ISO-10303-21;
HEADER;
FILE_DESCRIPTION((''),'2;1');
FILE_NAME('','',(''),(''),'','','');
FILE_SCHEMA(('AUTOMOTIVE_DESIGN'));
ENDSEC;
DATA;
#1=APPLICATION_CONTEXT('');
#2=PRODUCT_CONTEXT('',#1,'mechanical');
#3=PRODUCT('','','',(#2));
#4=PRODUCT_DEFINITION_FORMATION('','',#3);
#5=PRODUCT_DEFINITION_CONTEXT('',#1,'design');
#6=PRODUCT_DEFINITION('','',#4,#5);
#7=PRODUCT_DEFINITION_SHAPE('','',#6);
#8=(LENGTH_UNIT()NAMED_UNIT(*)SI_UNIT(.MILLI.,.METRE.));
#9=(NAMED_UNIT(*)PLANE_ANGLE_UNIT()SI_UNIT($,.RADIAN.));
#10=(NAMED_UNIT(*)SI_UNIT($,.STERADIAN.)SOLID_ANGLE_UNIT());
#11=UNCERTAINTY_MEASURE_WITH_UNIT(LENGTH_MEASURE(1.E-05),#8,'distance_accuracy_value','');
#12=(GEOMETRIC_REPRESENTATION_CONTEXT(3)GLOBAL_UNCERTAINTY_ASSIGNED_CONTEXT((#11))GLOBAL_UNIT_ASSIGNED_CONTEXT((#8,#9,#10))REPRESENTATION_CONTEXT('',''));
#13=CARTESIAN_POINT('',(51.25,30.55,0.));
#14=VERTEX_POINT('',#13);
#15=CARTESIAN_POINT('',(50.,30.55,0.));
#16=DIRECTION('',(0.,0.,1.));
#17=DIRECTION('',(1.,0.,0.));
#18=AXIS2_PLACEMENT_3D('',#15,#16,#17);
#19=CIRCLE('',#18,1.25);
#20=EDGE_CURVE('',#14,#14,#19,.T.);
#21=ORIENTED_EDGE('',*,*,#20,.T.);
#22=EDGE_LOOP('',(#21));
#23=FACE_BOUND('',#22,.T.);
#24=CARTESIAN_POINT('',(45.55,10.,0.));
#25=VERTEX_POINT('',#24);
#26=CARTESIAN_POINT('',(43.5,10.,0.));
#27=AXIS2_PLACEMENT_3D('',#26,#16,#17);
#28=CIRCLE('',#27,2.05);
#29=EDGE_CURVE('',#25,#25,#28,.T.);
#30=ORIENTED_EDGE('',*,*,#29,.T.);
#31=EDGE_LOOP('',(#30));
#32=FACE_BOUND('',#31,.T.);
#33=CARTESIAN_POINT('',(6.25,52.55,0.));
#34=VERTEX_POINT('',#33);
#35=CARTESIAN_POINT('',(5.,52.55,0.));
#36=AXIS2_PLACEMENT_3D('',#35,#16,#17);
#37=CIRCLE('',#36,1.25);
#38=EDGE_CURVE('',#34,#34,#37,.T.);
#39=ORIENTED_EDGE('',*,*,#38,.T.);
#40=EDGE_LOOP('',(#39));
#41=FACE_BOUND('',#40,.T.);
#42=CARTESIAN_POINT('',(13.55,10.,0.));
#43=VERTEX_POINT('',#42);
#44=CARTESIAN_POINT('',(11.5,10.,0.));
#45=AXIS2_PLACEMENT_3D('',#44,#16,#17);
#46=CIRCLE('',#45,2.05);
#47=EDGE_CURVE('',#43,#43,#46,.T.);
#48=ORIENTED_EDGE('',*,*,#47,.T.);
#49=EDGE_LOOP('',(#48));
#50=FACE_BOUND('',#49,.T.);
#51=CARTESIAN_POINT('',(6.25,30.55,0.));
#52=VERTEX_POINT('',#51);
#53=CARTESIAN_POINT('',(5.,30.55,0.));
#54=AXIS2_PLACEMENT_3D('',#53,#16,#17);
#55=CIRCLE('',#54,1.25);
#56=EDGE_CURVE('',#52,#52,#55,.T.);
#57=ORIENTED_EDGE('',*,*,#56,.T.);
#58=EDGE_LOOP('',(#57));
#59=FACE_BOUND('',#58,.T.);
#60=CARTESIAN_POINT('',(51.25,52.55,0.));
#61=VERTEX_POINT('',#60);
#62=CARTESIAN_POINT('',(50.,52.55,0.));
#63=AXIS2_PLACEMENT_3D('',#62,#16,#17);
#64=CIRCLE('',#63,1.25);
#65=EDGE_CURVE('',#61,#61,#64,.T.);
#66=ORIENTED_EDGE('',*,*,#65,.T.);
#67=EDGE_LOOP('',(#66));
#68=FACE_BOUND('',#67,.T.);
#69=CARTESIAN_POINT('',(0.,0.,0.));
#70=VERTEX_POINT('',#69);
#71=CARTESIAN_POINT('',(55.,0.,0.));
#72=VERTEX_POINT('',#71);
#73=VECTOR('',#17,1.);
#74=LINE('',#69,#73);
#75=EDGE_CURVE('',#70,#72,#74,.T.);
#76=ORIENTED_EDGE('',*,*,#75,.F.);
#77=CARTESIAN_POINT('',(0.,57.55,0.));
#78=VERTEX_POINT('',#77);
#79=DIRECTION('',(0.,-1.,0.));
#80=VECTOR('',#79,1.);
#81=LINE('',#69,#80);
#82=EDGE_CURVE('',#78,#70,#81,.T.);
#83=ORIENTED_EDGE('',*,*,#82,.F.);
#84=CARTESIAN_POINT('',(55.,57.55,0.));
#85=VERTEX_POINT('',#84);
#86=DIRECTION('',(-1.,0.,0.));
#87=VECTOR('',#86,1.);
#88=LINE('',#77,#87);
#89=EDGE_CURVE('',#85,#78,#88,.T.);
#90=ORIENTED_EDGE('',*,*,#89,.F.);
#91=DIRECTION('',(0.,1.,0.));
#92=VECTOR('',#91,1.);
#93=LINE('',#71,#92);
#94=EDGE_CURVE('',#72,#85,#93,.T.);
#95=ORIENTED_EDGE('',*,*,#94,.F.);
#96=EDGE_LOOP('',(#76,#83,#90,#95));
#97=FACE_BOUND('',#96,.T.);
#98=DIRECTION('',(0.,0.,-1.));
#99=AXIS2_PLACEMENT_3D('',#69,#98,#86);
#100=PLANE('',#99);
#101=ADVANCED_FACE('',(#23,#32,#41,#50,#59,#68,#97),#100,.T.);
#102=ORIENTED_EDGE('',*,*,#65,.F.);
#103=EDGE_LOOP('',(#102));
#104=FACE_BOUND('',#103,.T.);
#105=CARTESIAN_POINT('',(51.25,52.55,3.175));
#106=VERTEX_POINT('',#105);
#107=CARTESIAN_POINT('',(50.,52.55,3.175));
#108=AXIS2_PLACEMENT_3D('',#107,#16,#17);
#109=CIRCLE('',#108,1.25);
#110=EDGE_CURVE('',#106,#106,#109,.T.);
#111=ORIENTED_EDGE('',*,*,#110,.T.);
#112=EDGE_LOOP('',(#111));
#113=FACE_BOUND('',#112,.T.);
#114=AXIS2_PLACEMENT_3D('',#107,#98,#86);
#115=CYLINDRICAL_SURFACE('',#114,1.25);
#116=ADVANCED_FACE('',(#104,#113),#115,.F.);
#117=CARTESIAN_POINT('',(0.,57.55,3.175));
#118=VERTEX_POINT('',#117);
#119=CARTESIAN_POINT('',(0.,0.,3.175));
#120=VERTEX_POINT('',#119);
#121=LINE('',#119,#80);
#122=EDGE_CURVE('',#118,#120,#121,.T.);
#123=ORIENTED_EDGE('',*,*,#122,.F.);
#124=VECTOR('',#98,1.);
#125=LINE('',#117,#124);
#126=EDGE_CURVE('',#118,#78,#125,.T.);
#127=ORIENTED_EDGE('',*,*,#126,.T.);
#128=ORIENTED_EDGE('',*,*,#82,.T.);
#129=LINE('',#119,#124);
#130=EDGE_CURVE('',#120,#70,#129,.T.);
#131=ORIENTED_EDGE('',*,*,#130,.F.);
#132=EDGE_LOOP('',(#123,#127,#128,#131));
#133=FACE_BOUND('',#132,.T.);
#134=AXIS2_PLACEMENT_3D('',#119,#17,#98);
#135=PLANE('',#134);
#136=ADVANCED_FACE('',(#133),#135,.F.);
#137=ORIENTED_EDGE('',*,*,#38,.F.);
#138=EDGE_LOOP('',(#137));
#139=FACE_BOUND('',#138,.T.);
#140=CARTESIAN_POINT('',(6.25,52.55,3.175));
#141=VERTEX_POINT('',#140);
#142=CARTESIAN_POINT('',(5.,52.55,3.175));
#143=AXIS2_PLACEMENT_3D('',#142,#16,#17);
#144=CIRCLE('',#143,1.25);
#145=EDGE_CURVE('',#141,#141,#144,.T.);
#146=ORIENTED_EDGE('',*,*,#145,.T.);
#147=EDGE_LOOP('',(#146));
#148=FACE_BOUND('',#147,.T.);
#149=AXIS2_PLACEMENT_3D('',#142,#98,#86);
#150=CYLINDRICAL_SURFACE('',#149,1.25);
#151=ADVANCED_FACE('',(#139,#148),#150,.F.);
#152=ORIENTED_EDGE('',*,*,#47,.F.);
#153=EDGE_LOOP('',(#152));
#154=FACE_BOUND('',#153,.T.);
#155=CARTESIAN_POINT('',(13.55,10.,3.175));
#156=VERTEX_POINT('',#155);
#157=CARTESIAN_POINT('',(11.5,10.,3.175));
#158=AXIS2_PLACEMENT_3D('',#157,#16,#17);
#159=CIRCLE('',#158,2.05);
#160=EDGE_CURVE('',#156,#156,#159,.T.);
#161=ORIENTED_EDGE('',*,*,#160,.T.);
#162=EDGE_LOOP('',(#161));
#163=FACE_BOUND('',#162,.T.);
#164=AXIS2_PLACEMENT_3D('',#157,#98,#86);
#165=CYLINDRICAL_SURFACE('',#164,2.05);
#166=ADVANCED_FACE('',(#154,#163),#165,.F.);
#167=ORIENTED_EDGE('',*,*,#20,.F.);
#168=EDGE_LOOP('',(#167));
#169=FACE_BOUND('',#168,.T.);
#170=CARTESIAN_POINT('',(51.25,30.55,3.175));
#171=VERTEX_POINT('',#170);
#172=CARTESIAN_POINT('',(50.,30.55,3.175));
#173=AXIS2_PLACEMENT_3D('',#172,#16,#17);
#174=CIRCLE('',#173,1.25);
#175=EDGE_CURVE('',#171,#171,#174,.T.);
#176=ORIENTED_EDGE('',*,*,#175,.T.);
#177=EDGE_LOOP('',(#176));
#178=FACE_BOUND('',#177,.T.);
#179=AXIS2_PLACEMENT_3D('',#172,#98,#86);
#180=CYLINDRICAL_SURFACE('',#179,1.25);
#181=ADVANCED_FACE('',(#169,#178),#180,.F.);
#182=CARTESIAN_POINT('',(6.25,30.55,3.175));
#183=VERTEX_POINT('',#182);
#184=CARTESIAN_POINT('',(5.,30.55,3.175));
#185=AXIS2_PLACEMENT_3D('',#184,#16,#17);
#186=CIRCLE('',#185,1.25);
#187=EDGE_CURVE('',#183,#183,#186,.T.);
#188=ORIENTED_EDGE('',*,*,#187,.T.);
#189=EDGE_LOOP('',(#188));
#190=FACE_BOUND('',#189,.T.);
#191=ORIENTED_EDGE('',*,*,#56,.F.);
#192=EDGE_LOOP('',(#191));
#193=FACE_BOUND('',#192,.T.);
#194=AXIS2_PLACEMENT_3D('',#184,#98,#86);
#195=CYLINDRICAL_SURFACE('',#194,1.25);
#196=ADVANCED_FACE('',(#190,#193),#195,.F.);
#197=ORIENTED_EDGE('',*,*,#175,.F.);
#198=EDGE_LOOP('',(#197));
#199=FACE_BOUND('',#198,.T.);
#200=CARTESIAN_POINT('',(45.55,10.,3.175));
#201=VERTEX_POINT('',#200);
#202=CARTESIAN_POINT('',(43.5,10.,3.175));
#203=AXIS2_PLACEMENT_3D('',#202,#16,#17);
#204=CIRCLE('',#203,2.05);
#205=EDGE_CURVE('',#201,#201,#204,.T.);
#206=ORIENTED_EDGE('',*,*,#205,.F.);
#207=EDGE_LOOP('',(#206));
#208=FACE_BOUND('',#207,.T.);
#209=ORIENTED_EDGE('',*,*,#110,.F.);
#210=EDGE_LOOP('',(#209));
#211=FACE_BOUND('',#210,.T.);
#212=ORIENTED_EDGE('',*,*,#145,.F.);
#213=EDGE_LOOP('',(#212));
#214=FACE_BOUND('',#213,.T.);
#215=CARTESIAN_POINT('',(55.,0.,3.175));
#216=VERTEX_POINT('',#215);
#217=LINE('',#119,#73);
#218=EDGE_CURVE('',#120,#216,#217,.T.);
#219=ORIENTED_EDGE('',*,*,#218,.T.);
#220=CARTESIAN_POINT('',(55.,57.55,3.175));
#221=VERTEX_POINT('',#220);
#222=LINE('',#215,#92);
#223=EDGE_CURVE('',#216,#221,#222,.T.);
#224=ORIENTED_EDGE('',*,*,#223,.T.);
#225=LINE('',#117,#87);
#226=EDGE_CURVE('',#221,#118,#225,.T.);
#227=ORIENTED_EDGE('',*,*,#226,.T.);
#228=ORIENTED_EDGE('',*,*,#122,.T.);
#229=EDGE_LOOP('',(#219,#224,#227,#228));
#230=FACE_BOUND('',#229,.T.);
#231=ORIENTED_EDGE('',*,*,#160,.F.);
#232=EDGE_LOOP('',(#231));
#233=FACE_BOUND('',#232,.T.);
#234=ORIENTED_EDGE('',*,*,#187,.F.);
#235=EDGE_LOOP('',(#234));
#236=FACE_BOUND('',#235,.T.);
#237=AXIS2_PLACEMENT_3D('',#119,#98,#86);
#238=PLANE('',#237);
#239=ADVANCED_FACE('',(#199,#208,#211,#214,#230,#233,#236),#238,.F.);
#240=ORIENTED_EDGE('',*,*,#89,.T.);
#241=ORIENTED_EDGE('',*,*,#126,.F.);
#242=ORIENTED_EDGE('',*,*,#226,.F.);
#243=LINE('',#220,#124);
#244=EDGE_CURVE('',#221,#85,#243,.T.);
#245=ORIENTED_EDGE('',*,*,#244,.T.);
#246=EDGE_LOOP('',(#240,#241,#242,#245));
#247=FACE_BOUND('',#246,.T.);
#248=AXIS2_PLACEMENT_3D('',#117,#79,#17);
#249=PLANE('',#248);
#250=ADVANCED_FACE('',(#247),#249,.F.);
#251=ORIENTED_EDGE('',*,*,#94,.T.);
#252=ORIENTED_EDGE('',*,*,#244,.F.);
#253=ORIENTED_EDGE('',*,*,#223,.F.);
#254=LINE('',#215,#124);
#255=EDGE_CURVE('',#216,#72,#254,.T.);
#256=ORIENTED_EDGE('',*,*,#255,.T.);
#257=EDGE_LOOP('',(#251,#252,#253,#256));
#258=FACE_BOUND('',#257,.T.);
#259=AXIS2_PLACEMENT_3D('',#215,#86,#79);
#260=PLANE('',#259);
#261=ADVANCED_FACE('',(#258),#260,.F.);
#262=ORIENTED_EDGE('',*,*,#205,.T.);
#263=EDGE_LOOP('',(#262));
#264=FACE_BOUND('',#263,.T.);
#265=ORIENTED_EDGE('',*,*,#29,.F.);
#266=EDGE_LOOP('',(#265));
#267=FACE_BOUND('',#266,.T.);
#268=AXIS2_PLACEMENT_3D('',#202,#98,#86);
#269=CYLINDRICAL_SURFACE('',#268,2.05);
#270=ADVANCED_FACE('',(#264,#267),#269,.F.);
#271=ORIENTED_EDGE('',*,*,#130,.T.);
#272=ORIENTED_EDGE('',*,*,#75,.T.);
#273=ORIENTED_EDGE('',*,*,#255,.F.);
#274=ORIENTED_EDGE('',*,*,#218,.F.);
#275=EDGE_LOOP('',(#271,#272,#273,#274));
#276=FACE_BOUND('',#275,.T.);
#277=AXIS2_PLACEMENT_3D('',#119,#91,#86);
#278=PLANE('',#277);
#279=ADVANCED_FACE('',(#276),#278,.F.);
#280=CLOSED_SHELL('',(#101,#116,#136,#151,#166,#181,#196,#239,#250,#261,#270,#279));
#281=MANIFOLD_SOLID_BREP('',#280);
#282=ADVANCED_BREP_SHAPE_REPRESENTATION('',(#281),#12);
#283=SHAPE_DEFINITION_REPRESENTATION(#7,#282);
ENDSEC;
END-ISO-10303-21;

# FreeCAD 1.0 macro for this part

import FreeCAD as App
import Part
import Sketcher
from FreeCAD import Vector

doc = App.newDocument("Part")
body = doc.addObject("PartDesign::Body", "Body")

# Sketch on XY plane
sketch1 = doc.addObject("Sketcher::SketchObject", "Sketch")
body.addObject(sketch1)
sketch1.AttachmentSupport = (doc.XY_Plane, [""])
sketch1.MapMode = "FlatFace"
sketch1.addGeometry([
    Part.LineSegment(Vector(0, 57.5, 0), Vector(0, 0, 0)),  # 0
    Part.LineSegment(Vector(0, 0, 0), Vector(55, 0, 0)),  # 1
    Part.LineSegment(Vector(55, 0, 0), Vector(55, 57.5, 0)),  # 2
    Part.LineSegment(Vector(55, 57.5, 0), Vector(0, 57.5, 0)),  # 3
    Part.Circle(Vector(11.5, 10, 0), Vector(0, 0, 1), 2),  # 4
    Part.Circle(Vector(5, 30.6, 0), Vector(0, 0, 1), 1.2),  # 5
    Part.Circle(Vector(43.5, 10, 0), Vector(0, 0, 1), 2),  # 6
    Part.Circle(Vector(50, 30.6, 0), Vector(0, 0, 1), 1.2),  # 7
    Part.Circle(Vector(5, 52.5, 0), Vector(0, 0, 1), 1.2),  # 8
    Part.Circle(Vector(50, 52.5, 0), Vector(0, 0, 1), 1.2),  # 9
], False)
sketch1.addConstraint([
    Sketcher.Constraint("Coincident", 0, 2, 1, 1),
    Sketcher.Constraint("Coincident", 1, 2, 2, 1),
    Sketcher.Constraint("Coincident", 2, 2, 3, 1),
    Sketcher.Constraint("Coincident", 3, 2, 0, 1),
    Sketcher.Constraint("Vertical", 0),
    Sketcher.Constraint("Horizontal", 1),
    Sketcher.Constraint("Vertical", 2),
    Sketcher.Constraint("Horizontal", 3),
    Sketcher.Constraint("Coincident", 0, 2, -1, 1),
    Sketcher.Constraint("Equal", 4, 6),
    Sketcher.Constraint("Equal", 5, 7),
    Sketcher.Constraint("Equal", 7, 8),
    Sketcher.Constraint("Equal", 8, 9),
    Sketcher.Constraint("Horizontal", 4, 3, 6, 3),
    Sketcher.Constraint("Horizontal", 5, 3, 7, 3),
    Sketcher.Constraint("Horizontal", 8, 3, 9, 3),
    Sketcher.Constraint("Vertical", 5, 3, 8, 3),
    Sketcher.Constraint("Vertical", 7, 3, 9, 3),
    Sketcher.Constraint("Diameter", 4, 4.1),
    Sketcher.Constraint("Diameter", 5, 2.5),
    Sketcher.Constraint("DistanceX", 1, 1, 1, 2, 55.0),
    Sketcher.Constraint("DistanceY", -1, 1, 4, 3, 10.0),
    Sketcher.Constraint("DistanceX", -1, 1, 5, 3, 5.0),
    Sketcher.Constraint("DistanceX", -1, 1, 7, 3, 50.0),
    Sketcher.Constraint("DistanceX", 4, 3, 6, 3, 32.0),
    Sketcher.Constraint("DistanceY", 5, 3, 8, 3, 22.0),
    Sketcher.Constraint("DistanceY", 9, 3, 2, 2, 5.0),
    Sketcher.Constraint("DistanceY", 0, 2, 0, 1, 57.55),
    Sketcher.Constraint("DistanceX", -1, 1, 4, 3, 11.5),
])
pad1 = doc.addObject("PartDesign::Pad", "Pad")
body.addObject(pad1)
pad1.Profile = sketch1
pad1.Length = 3.175

doc.recompute()
